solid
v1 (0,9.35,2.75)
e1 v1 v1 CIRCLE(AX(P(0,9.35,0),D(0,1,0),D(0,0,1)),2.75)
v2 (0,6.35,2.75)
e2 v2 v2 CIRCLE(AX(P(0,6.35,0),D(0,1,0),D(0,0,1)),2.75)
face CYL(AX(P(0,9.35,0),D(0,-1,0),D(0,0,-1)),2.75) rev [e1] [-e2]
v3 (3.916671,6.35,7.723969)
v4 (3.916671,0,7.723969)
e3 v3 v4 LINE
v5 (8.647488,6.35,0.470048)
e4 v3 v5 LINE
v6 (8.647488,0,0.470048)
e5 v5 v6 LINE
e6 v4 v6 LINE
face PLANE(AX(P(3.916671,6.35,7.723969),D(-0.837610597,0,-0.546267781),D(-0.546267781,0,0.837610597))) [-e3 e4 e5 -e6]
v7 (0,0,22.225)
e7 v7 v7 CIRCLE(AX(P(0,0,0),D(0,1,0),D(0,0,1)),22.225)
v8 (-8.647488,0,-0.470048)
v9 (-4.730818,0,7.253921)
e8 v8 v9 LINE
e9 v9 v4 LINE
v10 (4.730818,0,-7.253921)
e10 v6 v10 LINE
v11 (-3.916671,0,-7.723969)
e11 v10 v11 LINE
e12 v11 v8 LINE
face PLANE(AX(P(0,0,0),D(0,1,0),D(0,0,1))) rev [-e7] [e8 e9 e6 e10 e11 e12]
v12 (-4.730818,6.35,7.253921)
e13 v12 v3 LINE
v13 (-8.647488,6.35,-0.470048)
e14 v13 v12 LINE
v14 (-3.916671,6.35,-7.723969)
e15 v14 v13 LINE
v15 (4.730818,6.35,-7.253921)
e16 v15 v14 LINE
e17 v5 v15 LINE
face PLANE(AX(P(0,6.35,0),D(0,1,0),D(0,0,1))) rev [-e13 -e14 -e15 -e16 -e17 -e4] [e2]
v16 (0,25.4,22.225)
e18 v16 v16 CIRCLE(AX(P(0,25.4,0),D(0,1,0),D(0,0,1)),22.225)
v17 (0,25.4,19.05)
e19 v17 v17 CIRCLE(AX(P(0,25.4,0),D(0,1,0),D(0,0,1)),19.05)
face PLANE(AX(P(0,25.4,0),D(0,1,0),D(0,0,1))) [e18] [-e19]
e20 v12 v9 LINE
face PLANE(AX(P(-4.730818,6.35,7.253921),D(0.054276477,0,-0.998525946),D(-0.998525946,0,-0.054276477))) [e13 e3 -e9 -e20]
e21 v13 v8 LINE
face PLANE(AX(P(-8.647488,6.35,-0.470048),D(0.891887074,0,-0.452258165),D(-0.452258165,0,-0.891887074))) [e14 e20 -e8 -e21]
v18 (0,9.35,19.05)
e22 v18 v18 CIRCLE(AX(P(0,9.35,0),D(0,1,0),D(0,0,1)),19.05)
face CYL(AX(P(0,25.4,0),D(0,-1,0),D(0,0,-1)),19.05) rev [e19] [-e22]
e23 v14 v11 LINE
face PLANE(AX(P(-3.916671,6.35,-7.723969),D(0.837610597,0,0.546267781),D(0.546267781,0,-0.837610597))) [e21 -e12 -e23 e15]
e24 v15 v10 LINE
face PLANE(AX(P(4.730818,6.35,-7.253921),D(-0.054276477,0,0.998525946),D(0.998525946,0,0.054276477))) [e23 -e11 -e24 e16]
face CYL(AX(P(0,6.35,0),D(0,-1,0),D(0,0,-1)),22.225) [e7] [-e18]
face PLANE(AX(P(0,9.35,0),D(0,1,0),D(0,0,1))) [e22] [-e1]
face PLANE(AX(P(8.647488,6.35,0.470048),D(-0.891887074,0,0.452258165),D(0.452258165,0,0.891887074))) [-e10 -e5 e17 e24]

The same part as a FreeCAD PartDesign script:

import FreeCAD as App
import Part
import Sketcher
from FreeCAD import Vector
Q = App.Units.Quantity


def add_polygon(sketch, points):
    """Adds a closed chain of lines whose ends are joined by coincident constraints."""
    first, n = sketch.GeometryCount, len(points)
    for a, b in zip(points, points[1:] + points[:1]):
        sketch.addGeometry(Part.LineSegment(App.Vector(*a, 0), App.Vector(*b, 0)), False)
    for i in range(n):
        sketch.addConstraint(Sketcher.Constraint("Coincident", first + i, 2, first + (i + 1) % n, 1))

doc = App.newDocument("Part")
body = doc.addObject("PartDesign::Body", "Body")

# Sketch on XZ plane
sketch1 = body.newObject("Sketcher::SketchObject", "Sketch")
sketch1.AttachmentSupport = (doc.getObject("XZ_Plane"), [""])
sketch1.MapMode = "FlatFace"
sketch1.addGeometry(Part.Circle(Vector(0, 0, 0), Vector(0, 0, 1), 22), False)  # 0
add_polygon(sketch1, [(-4, -8), (5, -7), (9, 0), (4, 8), (-5, 7), (-9, 0)])  # lines 1-6
sketch1.addConstraint([
    Sketcher.Constraint("Coincident", 0, 3, -1, 1),
    Sketcher.Constraint("Symmetric", 1, 2, 4, 2, -1, 1),
    Sketcher.Constraint("Symmetric", 2, 2, 5, 2, -1, 1),
    Sketcher.Constraint("Symmetric", 3, 2, 6, 2, -1, 1),
    Sketcher.Constraint("Equal", 1, 2),
    Sketcher.Constraint("Equal", 2, 3),
    Sketcher.Constraint("Diameter", 0, Q("1.75 in")),
    Sketcher.Constraint("DistanceY", 1, 2, -1, 1, 7.253921),
    Sketcher.Constraint("DistanceX", -1, 1, 2, 2, 8.647488),
    Sketcher.Constraint("DistanceY", -1, 1, 2, 2, 0.470048),
    Sketcher.Constraint("DistanceX", -1, 1, 3, 2, 3.916671),
])
pad1 = body.newObject("PartDesign::Pad", "Pad")
pad1.Profile = sketch1
pad1.Length = Q("0.25 in")
pad1.Reversed = True

# Sketch on XZ plane
sketch2 = body.newObject("Sketcher::SketchObject", "Sketch001")
sketch2.AttachmentSupport = (doc.getObject("XZ_Plane"), [""])
sketch2.MapMode = "FlatFace"
sketch2.AttachmentOffset = App.Placement(Vector(0, 0, -0.25 * 25.4), App.Rotation())
sketch2.addGeometry([
    Part.Circle(Vector(0, 0, 0), Vector(0, 0, 1), 22),
    Part.Circle(Vector(0, 0, 0), Vector(0, 0, 1), 19),
], False)
sketch2.addConstraint([
    Sketcher.Constraint("Coincident", 0, 3, -1, 1),
    Sketcher.Constraint("Coincident", 1, 3, -1, 1),
    Sketcher.Constraint("Diameter", 1, Q("1.5 in")),
    Sketcher.Constraint("Diameter", 0, Q("1.75 in")),
])
pad2 = body.newObject("PartDesign::Pad", "Pad001")
pad2.Profile = sketch2
pad2.Length = Q("0.75 in")
pad2.Reversed = True

# Sketch on XZ plane
sketch3 = body.newObject("Sketcher::SketchObject", "Sketch002")
sketch3.AttachmentSupport = (doc.getObject("XZ_Plane"), [""])
sketch3.MapMode = "FlatFace"
sketch3.AttachmentOffset = App.Placement(Vector(0, 0, -0.25 * 25.4), App.Rotation())
sketch3.addGeometry([
    Part.Circle(Vector(0, 0, 0), Vector(0, 0, 1), 19.1),
    Part.Circle(Vector(0, 0, 0), Vector(0, 0, 1), 2.8),
], False)
sketch3.addConstraint([
    Sketcher.Constraint("Coincident", 0, 3, -1, 1),
    Sketcher.Constraint("Coincident", 1, 3, -1, 1),
    Sketcher.Constraint("Diameter", 0, Q("1.5 in")),
    Sketcher.Constraint("Diameter", 1, 5.5),
])
pad3 = body.newObject("PartDesign::Pad", "Pad002")
pad3.Profile = sketch3
pad3.Length = 3
pad3.Reversed = True

doc.recompute()
